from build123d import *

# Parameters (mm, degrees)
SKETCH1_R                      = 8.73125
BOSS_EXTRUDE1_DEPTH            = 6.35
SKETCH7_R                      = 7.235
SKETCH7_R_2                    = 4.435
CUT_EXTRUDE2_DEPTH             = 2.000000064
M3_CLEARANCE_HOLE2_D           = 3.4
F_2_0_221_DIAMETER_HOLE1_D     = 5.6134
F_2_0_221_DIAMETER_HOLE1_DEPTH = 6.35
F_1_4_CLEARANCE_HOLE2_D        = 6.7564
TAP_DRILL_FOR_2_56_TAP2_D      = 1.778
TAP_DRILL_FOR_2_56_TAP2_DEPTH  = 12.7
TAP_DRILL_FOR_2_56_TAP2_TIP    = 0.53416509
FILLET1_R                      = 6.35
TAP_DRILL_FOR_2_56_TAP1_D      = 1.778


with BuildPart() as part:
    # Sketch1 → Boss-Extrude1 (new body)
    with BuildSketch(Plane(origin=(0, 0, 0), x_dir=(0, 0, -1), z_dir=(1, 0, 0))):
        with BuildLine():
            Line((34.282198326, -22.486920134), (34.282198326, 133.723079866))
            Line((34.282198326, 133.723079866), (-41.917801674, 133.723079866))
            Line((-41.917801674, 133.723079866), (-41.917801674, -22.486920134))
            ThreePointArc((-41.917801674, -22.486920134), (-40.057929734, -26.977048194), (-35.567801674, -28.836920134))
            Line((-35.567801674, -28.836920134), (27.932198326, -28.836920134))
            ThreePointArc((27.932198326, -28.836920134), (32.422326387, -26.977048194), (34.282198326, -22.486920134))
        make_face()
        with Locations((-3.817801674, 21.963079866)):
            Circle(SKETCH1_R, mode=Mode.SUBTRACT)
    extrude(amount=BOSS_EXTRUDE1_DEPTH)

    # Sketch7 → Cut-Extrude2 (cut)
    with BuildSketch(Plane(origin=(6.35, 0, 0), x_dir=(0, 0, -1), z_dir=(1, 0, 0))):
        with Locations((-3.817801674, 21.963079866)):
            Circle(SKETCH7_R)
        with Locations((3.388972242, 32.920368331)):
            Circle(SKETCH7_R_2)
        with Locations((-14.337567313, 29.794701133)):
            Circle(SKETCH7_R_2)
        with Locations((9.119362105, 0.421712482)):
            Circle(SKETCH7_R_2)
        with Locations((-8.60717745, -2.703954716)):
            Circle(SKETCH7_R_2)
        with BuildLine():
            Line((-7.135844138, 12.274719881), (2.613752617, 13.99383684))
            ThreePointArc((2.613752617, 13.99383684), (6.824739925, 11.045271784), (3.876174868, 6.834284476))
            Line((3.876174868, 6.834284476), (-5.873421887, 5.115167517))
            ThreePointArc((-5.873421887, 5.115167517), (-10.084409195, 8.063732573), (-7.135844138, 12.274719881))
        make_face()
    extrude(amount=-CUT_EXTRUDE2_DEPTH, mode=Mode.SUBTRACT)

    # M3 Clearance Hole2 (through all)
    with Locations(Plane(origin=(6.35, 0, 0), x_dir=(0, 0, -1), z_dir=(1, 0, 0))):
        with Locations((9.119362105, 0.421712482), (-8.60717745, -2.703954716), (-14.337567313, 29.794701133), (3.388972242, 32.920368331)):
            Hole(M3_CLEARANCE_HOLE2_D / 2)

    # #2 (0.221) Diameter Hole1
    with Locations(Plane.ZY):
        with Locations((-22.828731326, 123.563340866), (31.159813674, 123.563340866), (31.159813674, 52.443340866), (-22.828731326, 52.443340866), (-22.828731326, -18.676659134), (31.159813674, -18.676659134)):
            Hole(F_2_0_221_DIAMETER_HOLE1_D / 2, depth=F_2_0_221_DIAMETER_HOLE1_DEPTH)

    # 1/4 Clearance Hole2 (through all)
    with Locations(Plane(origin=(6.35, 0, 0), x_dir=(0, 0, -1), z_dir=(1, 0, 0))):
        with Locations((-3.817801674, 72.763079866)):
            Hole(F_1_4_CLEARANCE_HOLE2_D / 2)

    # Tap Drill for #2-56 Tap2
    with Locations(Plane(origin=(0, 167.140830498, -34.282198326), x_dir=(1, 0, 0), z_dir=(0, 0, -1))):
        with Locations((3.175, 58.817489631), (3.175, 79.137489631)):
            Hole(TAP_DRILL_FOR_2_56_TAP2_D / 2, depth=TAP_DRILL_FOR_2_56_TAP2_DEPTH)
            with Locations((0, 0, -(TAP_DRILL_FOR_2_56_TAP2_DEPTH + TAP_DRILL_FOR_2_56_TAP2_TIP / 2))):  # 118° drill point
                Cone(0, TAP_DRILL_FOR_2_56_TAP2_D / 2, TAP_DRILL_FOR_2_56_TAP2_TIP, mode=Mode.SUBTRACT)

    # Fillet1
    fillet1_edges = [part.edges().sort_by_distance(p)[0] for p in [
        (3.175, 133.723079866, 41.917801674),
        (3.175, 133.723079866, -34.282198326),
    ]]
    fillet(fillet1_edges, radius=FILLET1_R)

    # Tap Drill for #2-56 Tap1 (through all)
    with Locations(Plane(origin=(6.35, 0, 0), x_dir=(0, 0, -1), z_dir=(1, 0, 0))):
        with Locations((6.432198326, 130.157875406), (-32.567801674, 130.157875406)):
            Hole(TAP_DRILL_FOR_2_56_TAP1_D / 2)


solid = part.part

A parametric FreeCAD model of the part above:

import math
import FreeCAD as App
import Part
import Sketcher
Q = App.Units.Quantity


def edges_at(feature, points):
    """Names of the edges that pass closest to the given points."""
    edges = feature.Shape.Edges
    near = lambda p: min(range(len(edges)), key=lambda i: edges[i].distToShape(Part.Vertex(*p))[0])
    return sorted({f"Edge{near(p) + 1}" for p in points})

doc = App.newDocument("Part")
body = doc.addObject("PartDesign::Body", "Body")

# Sketch on YZ plane
sketch1 = body.newObject("Sketcher::SketchObject", "Sketch")
sketch1.AttachmentSupport = (doc.getObject("YZ_Plane"), [""])
sketch1.MapMode = "FlatFace"
sketch1.addGeometry([
    Part.LineSegment(App.Vector(-22.48692, -34.282198, 0), App.Vector(133.72308, -34.282198, 0)),  # 0
    Part.LineSegment(App.Vector(133.72308, -34.282198, 0), App.Vector(133.72308, 41.917802, 0)),  # 1
    Part.LineSegment(App.Vector(133.72308, 41.917802, 0), App.Vector(-22.48692, 41.917802, 0)),  # 2
    Part.ArcOfCircle(Part.Circle(App.Vector(-22.48692, 35.567802, 0), App.Vector(0, 0, 1), 6.35), math.radians(90), math.radians(180)),  # 3
    Part.LineSegment(App.Vector(-28.83692, 35.567802, 0), App.Vector(-28.83692, -27.932198, 0)),  # 4
    Part.ArcOfCircle(Part.Circle(App.Vector(-22.48692, -27.932198, 0), App.Vector(0, 0, 1), 6.35), math.radians(180), math.radians(270)),  # 5
    Part.Circle(App.Vector(21.96308, 3.817802, 0), App.Vector(0, 0, 1), 8.73125),  # 6
], False)
sketch1.addConstraint([
    Sketcher.Constraint("Coincident", 0, 2, 1, 1),
    Sketcher.Constraint("Coincident", 1, 2, 2, 1),
    Sketcher.Constraint("Tangent", 2, 2, 3, 1),
    Sketcher.Constraint("Tangent", 3, 2, 4, 1),
    Sketcher.Constraint("Tangent", 4, 2, 5, 1),
    Sketcher.Constraint("Tangent", 5, 2, 0, 1),
    Sketcher.Constraint("Horizontal", 0),
    Sketcher.Constraint("Vertical", 1),
    Sketcher.Constraint("Horizontal", 2),
    Sketcher.Constraint("Vertical", 4),
    Sketcher.Constraint("Equal", 3, 5),
    Sketcher.Constraint("DistanceY", 1, 1, 1, 2, Q("3 in")),
    Sketcher.Constraint("Radius", 3, Q("0.25 in")),
    Sketcher.Constraint("Diameter", 6, Q("0.6875 in")),
    Sketcher.Constraint("DistanceX", 3, 2, 6, 3, Q("2 in")),
    Sketcher.Constraint("DistanceX", 0, 1, 0, 2, Q("6.15 in")),
    Sketcher.Constraint("DistanceY", 0, 2, 6, 3, Q("1.5 in")),
    Sketcher.Constraint("DistanceY", -1, 1, 3, 3, Q("35.567802 mm")),
    Sketcher.Constraint("DistanceX", 3, 3, -1, 1, Q("22.48692 mm")),
])
pad1 = body.newObject("PartDesign::Pad", "Pad")
pad1.Profile = sketch1
pad1.Length = Q("0.25 in")

# Sketch on YZ plane
sketch2 = body.newObject("Sketcher::SketchObject", "Sketch001")
sketch2.AttachmentSupport = (doc.getObject("YZ_Plane"), [""])
sketch2.MapMode = "FlatFace"
sketch2.AttachmentOffset = App.Placement(App.Vector(0, 0, 0.25 * 25.4), App.Rotation())
sketch2.addGeometry([
    Part.Circle(App.Vector(21.96308, 3.817802, 0), App.Vector(0, 0, 1), 7.235),  # 0
    Part.Circle(App.Vector(32.920368, -3.388972, 0), App.Vector(0, 0, 1), 4.435),  # 1
    Part.Circle(App.Vector(29.794701, 14.337567, 0), App.Vector(0, 0, 1), 4.435),  # 2
    Part.Circle(App.Vector(0.421712, -9.119362, 0), App.Vector(0, 0, 1), 4.435),  # 3
    Part.Circle(App.Vector(-2.703955, 8.607177, 0), App.Vector(0, 0, 1), 4.435),  # 4
    Part.LineSegment(App.Vector(13.993837, -2.613753, 0), App.Vector(12.27472, 7.135844, 0)),  # 5
    Part.ArcOfCircle(Part.Circle(App.Vector(8.694944, 6.504633, 0), App.Vector(0, 0, 1), 3.635), math.radians(10), math.radians(190)),  # 6
    Part.LineSegment(App.Vector(5.115168, 5.873422, 0), App.Vector(6.834284, -3.876175, 0)),  # 7
    Part.ArcOfCircle(Part.Circle(App.Vector(10.414061, -3.244964, 0), App.Vector(0, 0, 1), 3.635), math.radians(-170), math.radians(10)),  # 8
], False)
sketch2.addConstraint([
    Sketcher.Constraint("Tangent", 5, 2, 6, 1),
    Sketcher.Constraint("Tangent", 6, 2, 7, 1),
    Sketcher.Constraint("Tangent", 7, 2, 8, 1),
    Sketcher.Constraint("Tangent", 8, 2, 5, 1),
    Sketcher.Constraint("Equal", 1, 2),
    Sketcher.Constraint("Equal", 2, 3),
    Sketcher.Constraint("Equal", 3, 4),
    Sketcher.Constraint("Equal", 6, 8),
    Sketcher.Constraint("Angle", 5, Q("100 deg")),
    Sketcher.Constraint("Diameter", 0, Q("14.47 mm")),
    Sketcher.Constraint("Diameter", 1, Q("8.87 mm")),
    Sketcher.Constraint("Radius", 6, Q("3.635 mm")),
    Sketcher.Constraint("Distance", 5, Q("9.9 mm")),
    Sketcher.Constraint("DistanceY", -1, 1, 0, 3, Q("3.817802 mm")),
    Sketcher.Constraint("DistanceX", -1, 1, 2, 3, Q("29.794701 mm")),
    Sketcher.Constraint("DistanceX", 4, 3, 6, 3, Q("11.398898 mm")),
    Sketcher.Constraint("DistanceY", 3, 3, 8, 3, Q("5.874398 mm")),
    Sketcher.Constraint("DistanceX", -1, 1, 0, 3, Q("21.96308 mm")),
    Sketcher.Constraint("DistanceX", -1, 1, 1, 3, Q("32.920368 mm")),
    Sketcher.Constraint("DistanceX", -1, 1, 8, 3, Q("10.414061 mm")),
    Sketcher.Constraint("DistanceY", -1, 1, 6, 2, Q("5.873422 mm")),
    Sketcher.Constraint("DistanceY", 1, 3, 2, 3, Q("17.72654 mm")),
    Sketcher.Constraint("DistanceY", 3, 3, 1, 3, Q("5.73039 mm")),
    Sketcher.Constraint("DistanceX", 3, 3, 2, 3, Q("29.372989 mm")),
    Sketcher.Constraint("DistanceY", 3, 3, 4, 3, Q("17.72654 mm")),
])
pocket1 = body.newObject("PartDesign::Pocket", "Pocket")
pocket1.Profile = sketch2
pocket1.Length = 2

# Sketch on YZ plane
sketch3 = body.newObject("Sketcher::SketchObject", "Sketch002")
sketch3.AttachmentSupport = (doc.getObject("YZ_Plane"), [""])
sketch3.MapMode = "FlatFace"
sketch3.AttachmentOffset = App.Placement(App.Vector(0, 0, 0.25 * 25.4), App.Rotation())
sketch3.addGeometry([
    Part.Circle(App.Vector(0.421712, -9.119362, 0), App.Vector(0, 0, 1), 1.7),
    Part.Circle(App.Vector(-2.703955, 8.607177, 0), App.Vector(0, 0, 1), 1.7),
    Part.Circle(App.Vector(29.794701, 14.337567, 0), App.Vector(0, 0, 1), 1.7),
    Part.Circle(App.Vector(32.920368, -3.388972, 0), App.Vector(0, 0, 1), 1.7),
], False)
sketch3.addConstraint([
    Sketcher.Constraint("Equal", 0, 1),
    Sketcher.Constraint("Equal", 1, 2),
    Sketcher.Constraint("Equal", 2, 3),
    Sketcher.Constraint("Diameter", 0, Q("3.4 mm")),
    Sketcher.Constraint("DistanceX", -1, 1, 2, 3, Q("29.794701 mm")),
    Sketcher.Constraint("DistanceX", -1, 1, 3, 3, Q("32.920368 mm")),
    Sketcher.Constraint("DistanceY", 0, 3, 1, 3, Q("17.72654 mm")),
    Sketcher.Constraint("DistanceY", 1, 3, 2, 3, Q("5.73039 mm")),
    Sketcher.Constraint("DistanceX", 0, 3, 2, 3, Q("29.372989 mm")),
    Sketcher.Constraint("DistanceY", 3, 3, 2, 3, Q("17.72654 mm")),
    Sketcher.Constraint("DistanceY", 0, 3, -1, 1, Q("9.119362 mm")),
    Sketcher.Constraint("DistanceX", 1, 3, -1, 1, Q("2.703955 mm")),
])
doc.recompute()
hole = body.newObject("PartDesign::Hole", "Hole")
hole.Profile = sketch3
hole.ThreadType = "None"
hole.Diameter = 3.4
hole.DepthType = "ThroughAll"

# Sketch on YZ plane
sketch4 = body.newObject("Sketcher::SketchObject", "Sketch003")
sketch4.AttachmentSupport = (doc.getObject("YZ_Plane"), [""])
sketch4.MapMode = "FlatFace"
sketch4.addGeometry([
    Part.Circle(App.Vector(123.563341, -22.828731, 0), App.Vector(0, 0, 1), 2.8067),  # 0
    Part.Circle(App.Vector(123.563341, 31.159814, 0), App.Vector(0, 0, 1), 2.8067),  # 1
    Part.Circle(App.Vector(52.443341, 31.159814, 0), App.Vector(0, 0, 1), 2.8067),  # 2
    Part.Circle(App.Vector(52.443341, -22.828731, 0), App.Vector(0, 0, 1), 2.8067),  # 3
    Part.Circle(App.Vector(-18.676659, -22.828731, 0), App.Vector(0, 0, 1), 2.8067),  # 4
    Part.Circle(App.Vector(-18.676659, 31.159814, 0), App.Vector(0, 0, 1), 2.8067),  # 5
], False)
sketch4.addConstraint([
    Sketcher.Constraint("Equal", 0, 1),
    Sketcher.Constraint("Equal", 1, 2),
    Sketcher.Constraint("Equal", 2, 3),
    Sketcher.Constraint("Equal", 3, 4),
    Sketcher.Constraint("Equal", 4, 5),
    Sketcher.Constraint("Horizontal", 1, 3, 2, 3),
    Sketcher.Constraint("Horizontal", 0, 3, 3, 3),
    Sketcher.Constraint("Horizontal", 3, 3, 4, 3),
    Sketcher.Constraint("Horizontal", 2, 3, 5, 3),
    Sketcher.Constraint("Vertical", 0, 3, 1, 3),
    Sketcher.Constraint("Vertical", 2, 3, 3, 3),
    Sketcher.Constraint("Vertical", 4, 3, 5, 3),
    Sketcher.Constraint("Diameter", 0, Q("0.221 in")),
    Sketcher.Constraint("DistanceX", 2, 3, 1, 3, Q("2.8 in")),
    Sketcher.Constraint("DistanceX", 4, 3, 3, 3, Q("2.8 in")),
    Sketcher.Constraint("DistanceX", -1, 1, 0, 3, Q("123.563341 mm")),
    Sketcher.Constraint("DistanceY", 0, 3, -1, 1, Q("22.828731 mm")),
    Sketcher.Constraint("DistanceY", -1, 1, 1, 3, Q("31.159814 mm")),
])
doc.recompute()
hole2 = body.newObject("PartDesign::Hole", "Hole001")
hole2.Profile = sketch4
hole2.ThreadType = "None"
hole2.Diameter = Q("0.221 in")
hole2.DepthType = "Dimension"
hole2.Depth = Q("0.25 in")
hole2.DrillPoint = "Flat"
hole2.Reversed = True

# Sketch on YZ plane
sketch5 = body.newObject("Sketcher::SketchObject", "Sketch004")
sketch5.AttachmentSupport = (doc.getObject("YZ_Plane"), [""])
sketch5.MapMode = "FlatFace"
sketch5.AttachmentOffset = App.Placement(App.Vector(0, 0, 0.25 * 25.4), App.Rotation())
sketch5.addGeometry(Part.Circle(App.Vector(72.76308, 3.817802, 0), App.Vector(0, 0, 1), 3.3782), False)
sketch5.addConstraint([
    Sketcher.Constraint("Diameter", 0, Q("0.266 in")),
    Sketcher.Constraint("DistanceY", -1, 1, 0, 3, Q("3.817802 mm")),
    Sketcher.Constraint("DistanceX", -1, 1, 0, 3, Q("72.76308 mm")),
])
doc.recompute()
hole3 = body.newObject("PartDesign::Hole", "Hole002")
hole3.Profile = sketch5
hole3.ThreadType = "None"
hole3.Diameter = Q("0.266 in")
hole3.DepthType = "ThroughAll"

# Sketch on XY plane
sketch6 = body.newObject("Sketcher::SketchObject", "Sketch005")
sketch6.AttachmentSupport = (doc.getObject("XY_Plane"), [""])
sketch6.MapMode = "FlatFace"
sketch6.AttachmentOffset = App.Placement(App.Vector(0, 0, -34.282198), App.Rotation())
sketch6.addGeometry([
    Part.Circle(App.Vector(3.175, 108.323341, 0), App.Vector(0, 0, 1), 0.889),
    Part.Circle(App.Vector(3.175, 88.003341, 0), App.Vector(0, 0, 1), 0.889),
], False)
sketch6.addConstraint([
    Sketcher.Constraint("Equal", 0, 1),
    Sketcher.Constraint("Vertical", 0, 3, 1, 3),
    Sketcher.Constraint("Diameter", 0, Q("0.07 in")),
    Sketcher.Constraint("DistanceY", 1, 3, 0, 3, Q("0.8 in")),
    Sketcher.Constraint("DistanceX", -1, 1, 0, 3, Q("0.125 in")),
    Sketcher.Constraint("DistanceY", -1, 1, 0, 3, Q("108.323341 mm")),
])
doc.recompute()
hole4 = body.newObject("PartDesign::Hole", "Hole003")
hole4.Profile = sketch6
hole4.ThreadType = "None"
hole4.Diameter = Q("0.07 in")
hole4.DepthType = "Dimension"
hole4.Depth = Q("0.5 in")
hole4.DrillPoint = "Angled"
hole4.DrillPointAngle = 118
hole4.Reversed = True
doc.recompute()

fillet = body.newObject("PartDesign::Fillet", "Fillet")
fillet.Base = (hole4, edges_at(hole4, [(3.175, 133.723, 41.918), (3.175, 133.723, -34.282)]))
fillet.Radius = Q("0.25 in")

# Sketch on YZ plane
sketch7 = body.newObject("Sketcher::SketchObject", "Sketch006")
sketch7.AttachmentSupport = (doc.getObject("YZ_Plane"), [""])
sketch7.MapMode = "FlatFace"
sketch7.AttachmentOffset = App.Placement(App.Vector(0, 0, 0.25 * 25.4), App.Rotation())
sketch7.addGeometry([
    Part.Circle(App.Vector(130.157875, -6.432198, 0), App.Vector(0, 0, 1), 0.889),
    Part.Circle(App.Vector(130.157875, 32.567802, 0), App.Vector(0, 0, 1), 0.889),
], False)
sketch7.addConstraint([
    Sketcher.Constraint("Equal", 0, 1),
    Sketcher.Constraint("Vertical", 0, 3, 1, 3),
    Sketcher.Constraint("Diameter", 0, Q("0.07 in")),
    Sketcher.Constraint("DistanceY", 0, 3, -1, 1, Q("6.432198 mm")),
    Sketcher.Constraint("DistanceY", -1, 1, 1, 3, Q("32.567802 mm")),
    Sketcher.Constraint("DistanceX", -1, 1, 0, 3, Q("130.157875 mm")),
])
doc.recompute()
hole5 = body.newObject("PartDesign::Hole", "Hole004")
hole5.Profile = sketch7
hole5.ThreadType = "None"
hole5.Diameter = Q("0.07 in")
hole5.DepthType = "ThroughAll"

doc.recompute()
